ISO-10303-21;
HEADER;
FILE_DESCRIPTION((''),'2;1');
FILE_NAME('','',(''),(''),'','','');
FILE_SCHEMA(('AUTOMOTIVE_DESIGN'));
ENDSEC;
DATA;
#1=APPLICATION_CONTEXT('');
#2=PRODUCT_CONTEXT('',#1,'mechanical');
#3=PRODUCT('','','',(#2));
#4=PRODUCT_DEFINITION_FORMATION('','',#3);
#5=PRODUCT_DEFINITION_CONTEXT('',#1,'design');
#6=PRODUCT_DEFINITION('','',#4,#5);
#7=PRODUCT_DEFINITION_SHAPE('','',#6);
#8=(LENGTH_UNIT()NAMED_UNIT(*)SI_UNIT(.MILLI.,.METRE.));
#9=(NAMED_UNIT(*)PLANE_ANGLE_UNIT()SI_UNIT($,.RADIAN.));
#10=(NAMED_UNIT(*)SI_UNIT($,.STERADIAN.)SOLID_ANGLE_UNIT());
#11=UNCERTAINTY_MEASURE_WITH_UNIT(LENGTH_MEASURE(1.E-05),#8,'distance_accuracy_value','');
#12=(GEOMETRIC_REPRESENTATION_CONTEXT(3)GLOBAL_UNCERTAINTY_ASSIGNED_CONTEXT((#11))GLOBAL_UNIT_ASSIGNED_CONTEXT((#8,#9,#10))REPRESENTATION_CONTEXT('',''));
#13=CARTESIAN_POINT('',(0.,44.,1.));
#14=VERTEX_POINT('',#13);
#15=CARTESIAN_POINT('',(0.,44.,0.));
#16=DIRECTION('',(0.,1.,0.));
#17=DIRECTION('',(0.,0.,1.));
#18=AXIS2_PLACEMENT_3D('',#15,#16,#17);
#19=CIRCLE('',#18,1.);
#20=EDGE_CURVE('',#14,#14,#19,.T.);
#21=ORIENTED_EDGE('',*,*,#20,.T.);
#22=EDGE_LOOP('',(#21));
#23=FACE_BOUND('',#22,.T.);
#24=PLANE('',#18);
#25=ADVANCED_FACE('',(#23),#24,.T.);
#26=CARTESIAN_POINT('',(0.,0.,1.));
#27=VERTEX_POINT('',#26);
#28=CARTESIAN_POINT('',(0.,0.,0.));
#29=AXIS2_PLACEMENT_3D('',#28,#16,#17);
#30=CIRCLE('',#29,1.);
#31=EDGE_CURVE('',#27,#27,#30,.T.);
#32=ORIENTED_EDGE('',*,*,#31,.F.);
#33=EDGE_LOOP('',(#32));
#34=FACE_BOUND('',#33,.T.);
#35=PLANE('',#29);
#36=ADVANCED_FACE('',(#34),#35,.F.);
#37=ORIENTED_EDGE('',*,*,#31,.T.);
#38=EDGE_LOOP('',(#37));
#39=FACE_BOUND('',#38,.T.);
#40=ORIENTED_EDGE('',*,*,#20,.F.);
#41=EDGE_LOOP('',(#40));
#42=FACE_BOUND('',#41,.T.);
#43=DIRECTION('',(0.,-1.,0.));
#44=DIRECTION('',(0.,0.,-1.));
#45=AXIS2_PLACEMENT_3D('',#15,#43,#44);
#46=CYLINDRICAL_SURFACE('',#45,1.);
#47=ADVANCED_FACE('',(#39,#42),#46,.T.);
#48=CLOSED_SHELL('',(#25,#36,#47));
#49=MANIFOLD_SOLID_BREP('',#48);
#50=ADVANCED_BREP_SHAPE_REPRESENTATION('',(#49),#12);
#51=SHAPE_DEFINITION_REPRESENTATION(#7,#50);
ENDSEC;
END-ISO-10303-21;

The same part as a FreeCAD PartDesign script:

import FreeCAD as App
import Part
import Sketcher
from FreeCAD import Vector

doc = App.newDocument("Part")
body = doc.addObject("PartDesign::Body", "Body")

# Sketch on XZ plane
sketch1 = doc.addObject("Sketcher::SketchObject", "Sketch")
body.addObject(sketch1)
sketch1.AttachmentSupport = (doc.XZ_Plane, [""])
sketch1.MapMode = "FlatFace"
sketch1.addGeometry(Part.Circle(Vector(0, 0, 0), Vector(0, 0, 1), 1), False)
sketch1.addConstraint([
    Sketcher.Constraint("Coincident", 0, 3, -1, 1),
    Sketcher.Constraint("Diameter", 0, 2.0),
])
pad1 = doc.addObject("PartDesign::Pad", "Pad")
body.addObject(pad1)
pad1.Profile = sketch1
pad1.Length = 44
pad1.Reversed = True

doc.recompute()
